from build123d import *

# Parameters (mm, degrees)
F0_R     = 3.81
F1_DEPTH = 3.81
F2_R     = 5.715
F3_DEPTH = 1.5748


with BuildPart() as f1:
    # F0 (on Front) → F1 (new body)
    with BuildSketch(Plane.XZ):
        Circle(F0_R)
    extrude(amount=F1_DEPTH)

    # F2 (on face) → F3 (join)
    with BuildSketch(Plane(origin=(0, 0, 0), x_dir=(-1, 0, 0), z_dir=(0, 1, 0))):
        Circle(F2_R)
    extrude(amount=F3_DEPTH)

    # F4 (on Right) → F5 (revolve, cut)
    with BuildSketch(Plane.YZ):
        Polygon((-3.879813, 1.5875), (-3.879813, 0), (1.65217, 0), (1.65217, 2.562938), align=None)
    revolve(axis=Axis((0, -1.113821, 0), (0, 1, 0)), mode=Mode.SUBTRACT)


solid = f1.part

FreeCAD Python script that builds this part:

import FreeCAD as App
import Part
import Sketcher

V = App.Vector
Q = App.Units.Quantity

doc = App.newDocument("Part")
body = doc.addObject("PartDesign::Body", "Body")

# Sketch on XZ plane
sketch1 = body.newObject("Sketcher::SketchObject", "Sketch")
sketch1.AttachmentSupport = (doc.getObject("XZ_Plane"), [""])
sketch1.MapMode = "FlatFace"
sketch1.addGeometry(Part.Circle(V(0, 0, 0), V(0, 0, 1), 3.8), False)
sketch1.addConstraint(Sketcher.Constraint("Coincident", 0, 3, -1, 1))
sketch1.addConstraint(Sketcher.Constraint("Diameter", 0, Q("0.3 in")))
pad1 = body.newObject("PartDesign::Pad", "Pad")
pad1.Profile = sketch1
pad1.Length = Q("0.15 in")

# Sketch on XZ plane
sketch2 = body.newObject("Sketcher::SketchObject", "Sketch001")
sketch2.AttachmentSupport = (doc.getObject("XZ_Plane"), [""])
sketch2.MapMode = "FlatFace"
sketch2.addGeometry(Part.Circle(V(0, 0, 0), V(0, 0, 1), 6), False)
sketch2.addConstraint(Sketcher.Constraint("Coincident", 0, 3, -1, 1))
sketch2.addConstraint(Sketcher.Constraint("Diameter", 0, Q("0.45 in")))
pad2 = body.newObject("PartDesign::Pad", "Pad001")
pad2.Profile = sketch2
pad2.Length = Q("0.062 in")
pad2.Reversed = True

# Sketch on YZ plane
sketch3 = body.newObject("Sketcher::SketchObject", "Sketch002")
sketch3.AttachmentSupport = (doc.getObject("YZ_Plane"), [""])
sketch3.MapMode = "FlatFace"
sketch3.addGeometry(Part.LineSegment(V(-3.9, 1.6, 0), V(-3.9, 0, 0)), False)
sketch3.addGeometry(Part.LineSegment(V(-3.9, 0, 0), V(1.7, 0, 0)), False)
sketch3.addGeometry(Part.LineSegment(V(1.7, 0, 0), V(1.7, 2.6, 0)), False)
sketch3.addGeometry(Part.LineSegment(V(1.7, 2.6, 0), V(-3.9, 1.6, 0)), False)
sketch3.addConstraint(Sketcher.Constraint("Coincident", 0, 2, 1, 1))
sketch3.addConstraint(Sketcher.Constraint("Coincident", 1, 2, 2, 1))
sketch3.addConstraint(Sketcher.Constraint("Coincident", 2, 2, 3, 1))
sketch3.addConstraint(Sketcher.Constraint("Coincident", 3, 2, 0, 1))
sketch3.addConstraint(Sketcher.Constraint("Vertical", 0))
sketch3.addConstraint(Sketcher.Constraint("Horizontal", 1))
sketch3.addConstraint(Sketcher.Constraint("Vertical", 2))
sketch3.addConstraint(Sketcher.Constraint("PointOnObject", 0, 2, -1))
sketch3.addConstraint(Sketcher.Constraint("Angle", 3, Q("-169.999999 deg")))
sketch3.addConstraint(Sketcher.Constraint("DistanceY", 0, 2, 0, 1, Q("0.0625 in")))
sketch3.addConstraint(Sketcher.Constraint("DistanceX", 1, 1, 1, 2, Q("5.531983 mm")))
sketch3.addConstraint(Sketcher.Constraint("DistanceX", -1, 1, 1, 2, Q("1.65217 mm")))
groove = body.newObject("PartDesign::Groove", "Groove")
groove.Profile = sketch3
groove.ReferenceAxis = (sketch3, ["H_Axis"])
groove.Angle = 360

doc.recompute()
